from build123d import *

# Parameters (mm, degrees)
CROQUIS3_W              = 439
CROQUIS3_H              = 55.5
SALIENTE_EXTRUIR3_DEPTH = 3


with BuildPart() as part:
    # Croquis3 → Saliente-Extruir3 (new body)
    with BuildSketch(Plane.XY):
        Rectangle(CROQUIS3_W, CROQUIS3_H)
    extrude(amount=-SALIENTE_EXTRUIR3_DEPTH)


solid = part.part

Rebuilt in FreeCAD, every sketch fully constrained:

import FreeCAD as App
import Part
import Sketcher
Q = App.Units.Quantity


def add_polygon(sketch, points):
    """Adds a closed chain of lines whose ends are joined by coincident constraints."""
    first, n = sketch.GeometryCount, len(points)
    for a, b in zip(points, points[1:] + points[:1]):
        sketch.addGeometry(Part.LineSegment(App.Vector(*a, 0), App.Vector(*b, 0)), False)
    for i in range(n):
        sketch.addConstraint(Sketcher.Constraint("Coincident", first + i, 2, first + (i + 1) % n, 1))

doc = App.newDocument("Part")
body = doc.addObject("PartDesign::Body", "Body")

# Sketch on XY plane
sketch1 = body.newObject("Sketcher::SketchObject", "Sketch")
sketch1.AttachmentSupport = (doc.getObject("XY_Plane"), [""])
sketch1.MapMode = "FlatFace"
add_polygon(sketch1, [(-220, 28), (-220, -28), (220, -28), (220, 28)])  # lines 0-3
sketch1.addConstraint(Sketcher.Constraint("Vertical", 0))
sketch1.addConstraint(Sketcher.Constraint("Horizontal", 1))
sketch1.addConstraint(Sketcher.Constraint("Vertical", 2))
sketch1.addConstraint(Sketcher.Constraint("Horizontal", 3))
sketch1.addConstraint(Sketcher.Constraint("Symmetric", 0, 2, 2, 2, -1, 1))
sketch1.addConstraint(Sketcher.Constraint("DistanceX", 1, 1, 1, 2, Q("439 mm")))
sketch1.addConstraint(Sketcher.Constraint("DistanceY", 0, 2, 0, 1, Q("55.5 mm")))
pad1 = body.newObject("PartDesign::Pad", "Pad")
pad1.Profile = sketch1
pad1.Length = 3
pad1.Reversed = True

doc.recompute()
